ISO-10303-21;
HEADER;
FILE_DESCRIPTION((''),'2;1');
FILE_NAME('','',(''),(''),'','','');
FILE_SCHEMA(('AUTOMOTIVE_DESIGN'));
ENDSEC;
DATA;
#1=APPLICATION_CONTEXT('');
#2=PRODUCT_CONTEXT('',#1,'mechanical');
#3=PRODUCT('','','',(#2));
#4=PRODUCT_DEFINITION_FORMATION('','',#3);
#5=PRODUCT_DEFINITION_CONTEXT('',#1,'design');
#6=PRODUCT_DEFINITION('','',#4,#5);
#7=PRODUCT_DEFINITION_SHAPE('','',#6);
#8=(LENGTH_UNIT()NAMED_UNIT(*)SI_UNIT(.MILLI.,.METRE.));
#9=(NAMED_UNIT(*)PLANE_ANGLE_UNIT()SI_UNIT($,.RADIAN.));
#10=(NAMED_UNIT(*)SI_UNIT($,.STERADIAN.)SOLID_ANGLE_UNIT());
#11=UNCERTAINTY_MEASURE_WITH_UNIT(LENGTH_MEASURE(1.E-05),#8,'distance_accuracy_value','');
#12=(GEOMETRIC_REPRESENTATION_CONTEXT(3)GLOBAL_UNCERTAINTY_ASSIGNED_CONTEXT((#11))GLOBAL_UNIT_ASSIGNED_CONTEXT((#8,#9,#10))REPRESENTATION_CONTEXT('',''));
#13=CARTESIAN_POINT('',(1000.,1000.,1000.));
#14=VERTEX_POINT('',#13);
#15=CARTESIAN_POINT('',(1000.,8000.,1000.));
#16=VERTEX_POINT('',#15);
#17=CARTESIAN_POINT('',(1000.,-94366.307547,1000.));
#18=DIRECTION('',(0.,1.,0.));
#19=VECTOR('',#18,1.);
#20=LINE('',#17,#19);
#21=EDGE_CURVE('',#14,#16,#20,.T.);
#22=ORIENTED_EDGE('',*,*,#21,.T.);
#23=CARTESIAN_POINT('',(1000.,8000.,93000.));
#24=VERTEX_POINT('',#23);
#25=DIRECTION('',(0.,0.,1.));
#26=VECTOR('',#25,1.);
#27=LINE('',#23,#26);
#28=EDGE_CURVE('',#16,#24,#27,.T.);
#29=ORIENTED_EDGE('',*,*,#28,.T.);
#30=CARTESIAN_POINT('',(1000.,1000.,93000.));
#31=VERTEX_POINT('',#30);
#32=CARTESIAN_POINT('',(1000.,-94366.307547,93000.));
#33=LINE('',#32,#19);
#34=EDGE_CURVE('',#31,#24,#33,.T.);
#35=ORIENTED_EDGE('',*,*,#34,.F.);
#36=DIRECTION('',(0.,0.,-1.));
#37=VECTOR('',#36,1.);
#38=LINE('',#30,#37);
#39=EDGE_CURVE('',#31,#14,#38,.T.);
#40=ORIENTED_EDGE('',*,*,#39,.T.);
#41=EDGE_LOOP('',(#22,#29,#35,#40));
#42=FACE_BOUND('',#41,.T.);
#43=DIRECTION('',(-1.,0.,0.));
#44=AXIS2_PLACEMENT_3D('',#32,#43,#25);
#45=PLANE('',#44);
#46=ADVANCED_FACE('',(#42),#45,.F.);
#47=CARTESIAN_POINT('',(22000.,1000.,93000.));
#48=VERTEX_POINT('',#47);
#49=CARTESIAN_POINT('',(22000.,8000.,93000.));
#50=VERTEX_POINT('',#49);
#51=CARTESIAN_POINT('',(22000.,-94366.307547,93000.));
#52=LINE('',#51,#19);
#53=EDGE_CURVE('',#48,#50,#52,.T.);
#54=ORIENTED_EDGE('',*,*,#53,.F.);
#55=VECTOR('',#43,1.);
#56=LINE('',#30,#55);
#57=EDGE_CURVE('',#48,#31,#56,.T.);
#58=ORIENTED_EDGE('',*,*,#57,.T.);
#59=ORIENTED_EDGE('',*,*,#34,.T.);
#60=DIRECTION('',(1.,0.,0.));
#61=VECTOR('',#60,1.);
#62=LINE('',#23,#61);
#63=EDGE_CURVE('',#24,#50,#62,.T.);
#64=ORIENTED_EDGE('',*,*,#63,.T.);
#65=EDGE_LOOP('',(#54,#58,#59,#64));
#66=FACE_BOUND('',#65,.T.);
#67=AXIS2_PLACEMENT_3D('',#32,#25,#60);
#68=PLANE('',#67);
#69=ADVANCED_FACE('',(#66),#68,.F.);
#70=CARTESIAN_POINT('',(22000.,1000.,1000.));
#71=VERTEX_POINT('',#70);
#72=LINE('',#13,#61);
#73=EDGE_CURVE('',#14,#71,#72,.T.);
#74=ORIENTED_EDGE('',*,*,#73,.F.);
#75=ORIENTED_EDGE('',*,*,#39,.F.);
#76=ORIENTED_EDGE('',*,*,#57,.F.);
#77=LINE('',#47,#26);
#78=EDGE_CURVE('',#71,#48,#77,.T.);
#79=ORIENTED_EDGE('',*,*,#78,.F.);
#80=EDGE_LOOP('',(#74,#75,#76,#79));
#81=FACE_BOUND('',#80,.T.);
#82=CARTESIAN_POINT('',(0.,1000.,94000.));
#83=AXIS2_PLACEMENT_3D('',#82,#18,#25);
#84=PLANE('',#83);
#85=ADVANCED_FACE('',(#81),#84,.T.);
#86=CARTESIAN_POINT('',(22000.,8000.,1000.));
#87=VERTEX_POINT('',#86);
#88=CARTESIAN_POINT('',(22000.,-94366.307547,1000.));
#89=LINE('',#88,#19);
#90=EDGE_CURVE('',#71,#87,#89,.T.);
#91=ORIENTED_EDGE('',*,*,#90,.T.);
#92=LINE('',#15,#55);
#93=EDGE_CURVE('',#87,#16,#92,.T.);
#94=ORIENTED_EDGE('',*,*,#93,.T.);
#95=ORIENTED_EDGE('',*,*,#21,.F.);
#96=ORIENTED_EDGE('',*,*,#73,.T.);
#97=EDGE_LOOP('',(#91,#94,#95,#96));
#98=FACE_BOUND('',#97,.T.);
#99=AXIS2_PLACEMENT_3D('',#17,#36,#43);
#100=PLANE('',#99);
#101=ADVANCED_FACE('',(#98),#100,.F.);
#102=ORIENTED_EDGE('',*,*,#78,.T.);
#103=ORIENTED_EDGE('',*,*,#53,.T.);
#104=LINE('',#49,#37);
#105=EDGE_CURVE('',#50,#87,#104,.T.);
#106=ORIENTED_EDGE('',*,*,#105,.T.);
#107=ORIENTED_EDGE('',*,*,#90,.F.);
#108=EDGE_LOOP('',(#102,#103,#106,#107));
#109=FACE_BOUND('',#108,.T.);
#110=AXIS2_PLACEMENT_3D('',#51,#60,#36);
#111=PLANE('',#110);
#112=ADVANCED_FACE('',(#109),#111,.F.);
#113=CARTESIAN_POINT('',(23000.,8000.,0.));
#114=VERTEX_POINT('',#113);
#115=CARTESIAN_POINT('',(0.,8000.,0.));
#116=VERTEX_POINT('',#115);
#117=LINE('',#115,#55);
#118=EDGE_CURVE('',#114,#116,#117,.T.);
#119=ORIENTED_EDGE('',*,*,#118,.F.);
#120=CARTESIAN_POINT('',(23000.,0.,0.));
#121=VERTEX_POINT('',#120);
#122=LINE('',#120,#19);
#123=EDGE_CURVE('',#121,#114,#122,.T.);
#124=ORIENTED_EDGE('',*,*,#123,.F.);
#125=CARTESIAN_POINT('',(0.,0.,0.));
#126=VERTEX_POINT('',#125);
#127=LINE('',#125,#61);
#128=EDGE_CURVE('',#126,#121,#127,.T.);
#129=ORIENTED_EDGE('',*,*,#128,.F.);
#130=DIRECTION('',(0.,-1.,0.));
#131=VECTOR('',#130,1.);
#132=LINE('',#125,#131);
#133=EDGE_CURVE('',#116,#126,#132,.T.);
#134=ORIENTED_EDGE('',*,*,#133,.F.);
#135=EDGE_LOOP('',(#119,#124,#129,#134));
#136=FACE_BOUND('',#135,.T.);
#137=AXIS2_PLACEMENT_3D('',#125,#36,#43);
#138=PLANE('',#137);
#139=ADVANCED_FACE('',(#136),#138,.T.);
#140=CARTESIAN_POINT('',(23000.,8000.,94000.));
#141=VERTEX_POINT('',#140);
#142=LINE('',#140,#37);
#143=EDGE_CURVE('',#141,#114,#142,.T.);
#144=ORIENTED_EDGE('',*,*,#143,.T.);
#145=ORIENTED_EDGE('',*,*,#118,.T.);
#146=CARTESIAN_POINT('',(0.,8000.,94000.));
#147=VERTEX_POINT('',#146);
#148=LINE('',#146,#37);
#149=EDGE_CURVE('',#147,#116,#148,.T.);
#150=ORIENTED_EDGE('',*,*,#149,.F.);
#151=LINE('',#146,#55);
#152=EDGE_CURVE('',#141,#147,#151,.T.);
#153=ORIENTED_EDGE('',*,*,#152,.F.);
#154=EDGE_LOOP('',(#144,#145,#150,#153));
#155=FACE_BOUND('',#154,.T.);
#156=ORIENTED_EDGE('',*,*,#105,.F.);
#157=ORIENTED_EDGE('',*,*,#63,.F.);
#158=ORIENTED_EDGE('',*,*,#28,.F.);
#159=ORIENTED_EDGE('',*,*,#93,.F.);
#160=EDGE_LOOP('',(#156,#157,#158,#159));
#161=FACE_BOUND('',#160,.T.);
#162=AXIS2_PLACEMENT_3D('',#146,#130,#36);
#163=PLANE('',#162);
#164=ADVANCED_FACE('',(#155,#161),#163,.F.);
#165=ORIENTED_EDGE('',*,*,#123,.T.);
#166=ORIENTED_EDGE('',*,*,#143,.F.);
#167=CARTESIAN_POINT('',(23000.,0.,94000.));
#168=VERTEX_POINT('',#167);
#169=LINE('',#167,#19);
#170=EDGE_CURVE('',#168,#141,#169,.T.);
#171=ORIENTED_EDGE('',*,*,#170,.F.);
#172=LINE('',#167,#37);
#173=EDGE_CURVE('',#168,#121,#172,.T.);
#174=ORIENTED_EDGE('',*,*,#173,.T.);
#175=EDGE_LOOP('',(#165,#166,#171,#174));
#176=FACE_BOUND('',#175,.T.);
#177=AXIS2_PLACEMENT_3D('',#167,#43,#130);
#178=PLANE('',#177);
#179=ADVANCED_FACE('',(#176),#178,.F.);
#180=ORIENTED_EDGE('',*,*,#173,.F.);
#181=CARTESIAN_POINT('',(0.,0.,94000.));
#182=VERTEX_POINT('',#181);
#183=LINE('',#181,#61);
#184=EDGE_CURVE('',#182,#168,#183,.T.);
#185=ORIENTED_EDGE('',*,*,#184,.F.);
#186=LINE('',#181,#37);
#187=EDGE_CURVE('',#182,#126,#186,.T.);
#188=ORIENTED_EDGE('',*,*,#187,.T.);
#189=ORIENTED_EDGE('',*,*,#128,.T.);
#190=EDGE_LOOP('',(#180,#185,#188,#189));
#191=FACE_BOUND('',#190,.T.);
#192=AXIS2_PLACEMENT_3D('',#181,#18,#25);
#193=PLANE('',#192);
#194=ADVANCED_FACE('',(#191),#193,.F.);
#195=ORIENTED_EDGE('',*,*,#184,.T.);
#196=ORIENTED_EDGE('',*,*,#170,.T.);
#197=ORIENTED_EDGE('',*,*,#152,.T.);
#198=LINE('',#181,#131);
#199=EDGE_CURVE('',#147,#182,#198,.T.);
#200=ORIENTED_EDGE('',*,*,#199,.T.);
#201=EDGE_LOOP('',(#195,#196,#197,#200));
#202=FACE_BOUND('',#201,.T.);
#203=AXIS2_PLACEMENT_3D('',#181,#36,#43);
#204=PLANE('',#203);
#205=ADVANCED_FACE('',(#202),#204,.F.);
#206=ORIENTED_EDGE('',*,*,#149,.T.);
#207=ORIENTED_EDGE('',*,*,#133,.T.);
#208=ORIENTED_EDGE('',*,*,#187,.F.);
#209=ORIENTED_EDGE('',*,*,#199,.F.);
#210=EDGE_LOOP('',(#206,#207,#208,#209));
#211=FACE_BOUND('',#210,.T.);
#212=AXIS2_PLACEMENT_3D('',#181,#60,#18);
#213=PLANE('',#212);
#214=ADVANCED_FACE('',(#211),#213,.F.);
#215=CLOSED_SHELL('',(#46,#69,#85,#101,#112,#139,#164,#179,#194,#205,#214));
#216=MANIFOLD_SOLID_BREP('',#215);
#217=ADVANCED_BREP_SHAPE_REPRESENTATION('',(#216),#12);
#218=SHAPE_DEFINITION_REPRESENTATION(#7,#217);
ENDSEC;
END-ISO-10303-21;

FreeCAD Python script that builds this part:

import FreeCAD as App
import Part
import Sketcher
from FreeCAD import Vector
Q = App.Units.Quantity


def add_polygon(sketch, points):
    """Adds a closed chain of lines whose ends are joined by coincident constraints."""
    first, n = sketch.GeometryCount, len(points)
    for a, b in zip(points, points[1:] + points[:1]):
        sketch.addGeometry(Part.LineSegment(App.Vector(*a, 0), App.Vector(*b, 0)), False)
    for i in range(n):
        sketch.addConstraint(Sketcher.Constraint("Coincident", first + i, 2, first + (i + 1) % n, 1))

doc = App.newDocument("Part")
body = doc.addObject("PartDesign::Body", "Body")

sketch1 = body.newObject("Sketcher::SketchObject", "Sketch")
sketch1.AttachmentSupport = (doc.getObject("XY_Plane"), [""])
sketch1.MapMode = "FlatFace"
add_polygon(sketch1, [(0, 8000), (0, 0), (23000, 0), (23000, 8000)])
sketch1.addConstraint([
    Sketcher.Constraint("Vertical", 0),
    Sketcher.Constraint("Horizontal", 1),
    Sketcher.Constraint("Vertical", 2),
    Sketcher.Constraint("Horizontal", 3),
    Sketcher.Constraint("Coincident", 0, 2, -1, 1),
    Sketcher.Constraint("DistanceX", 1, 1, 1, 2, Q("23000 mm")),
    Sketcher.Constraint("DistanceY", 0, 2, 0, 1, Q("8000 mm")),
])
pad1 = body.newObject("PartDesign::Pad", "Pad")
pad1.Profile = sketch1
pad1.Length = 94000

sketch2 = body.newObject("Sketcher::SketchObject", "Sketch001")
sketch2.AttachmentSupport = (doc.getObject("XZ_Plane"), [""])
sketch2.MapMode = "FlatFace"
sketch2.AttachmentOffset = App.Placement(Vector(0, 0, -8000), App.Rotation())
add_polygon(sketch2, [(1000, 1000), (1000, 93000), (22000, 93000), (22000, 1000)])
sketch2.addConstraint([
    Sketcher.Constraint("Vertical", 0),
    Sketcher.Constraint("Horizontal", 1),
    Sketcher.Constraint("Vertical", 2),
    Sketcher.Constraint("Horizontal", 3),
    Sketcher.Constraint("DistanceX", 1, 1, 1, 2, Q("21000 mm")),
    Sketcher.Constraint("DistanceY", 0, 1, 0, 2, Q("92000 mm")),
    Sketcher.Constraint("DistanceX", -1, 1, 0, 2, Q("1000 mm")),
    Sketcher.Constraint("DistanceY", -1, 1, 0, 2, Q("93000 mm")),
])
pocket1 = body.newObject("PartDesign::Pocket", "Pocket")
pocket1.Profile = sketch2
pocket1.Length = 7000
pocket1.Reversed = True

doc.recompute()
